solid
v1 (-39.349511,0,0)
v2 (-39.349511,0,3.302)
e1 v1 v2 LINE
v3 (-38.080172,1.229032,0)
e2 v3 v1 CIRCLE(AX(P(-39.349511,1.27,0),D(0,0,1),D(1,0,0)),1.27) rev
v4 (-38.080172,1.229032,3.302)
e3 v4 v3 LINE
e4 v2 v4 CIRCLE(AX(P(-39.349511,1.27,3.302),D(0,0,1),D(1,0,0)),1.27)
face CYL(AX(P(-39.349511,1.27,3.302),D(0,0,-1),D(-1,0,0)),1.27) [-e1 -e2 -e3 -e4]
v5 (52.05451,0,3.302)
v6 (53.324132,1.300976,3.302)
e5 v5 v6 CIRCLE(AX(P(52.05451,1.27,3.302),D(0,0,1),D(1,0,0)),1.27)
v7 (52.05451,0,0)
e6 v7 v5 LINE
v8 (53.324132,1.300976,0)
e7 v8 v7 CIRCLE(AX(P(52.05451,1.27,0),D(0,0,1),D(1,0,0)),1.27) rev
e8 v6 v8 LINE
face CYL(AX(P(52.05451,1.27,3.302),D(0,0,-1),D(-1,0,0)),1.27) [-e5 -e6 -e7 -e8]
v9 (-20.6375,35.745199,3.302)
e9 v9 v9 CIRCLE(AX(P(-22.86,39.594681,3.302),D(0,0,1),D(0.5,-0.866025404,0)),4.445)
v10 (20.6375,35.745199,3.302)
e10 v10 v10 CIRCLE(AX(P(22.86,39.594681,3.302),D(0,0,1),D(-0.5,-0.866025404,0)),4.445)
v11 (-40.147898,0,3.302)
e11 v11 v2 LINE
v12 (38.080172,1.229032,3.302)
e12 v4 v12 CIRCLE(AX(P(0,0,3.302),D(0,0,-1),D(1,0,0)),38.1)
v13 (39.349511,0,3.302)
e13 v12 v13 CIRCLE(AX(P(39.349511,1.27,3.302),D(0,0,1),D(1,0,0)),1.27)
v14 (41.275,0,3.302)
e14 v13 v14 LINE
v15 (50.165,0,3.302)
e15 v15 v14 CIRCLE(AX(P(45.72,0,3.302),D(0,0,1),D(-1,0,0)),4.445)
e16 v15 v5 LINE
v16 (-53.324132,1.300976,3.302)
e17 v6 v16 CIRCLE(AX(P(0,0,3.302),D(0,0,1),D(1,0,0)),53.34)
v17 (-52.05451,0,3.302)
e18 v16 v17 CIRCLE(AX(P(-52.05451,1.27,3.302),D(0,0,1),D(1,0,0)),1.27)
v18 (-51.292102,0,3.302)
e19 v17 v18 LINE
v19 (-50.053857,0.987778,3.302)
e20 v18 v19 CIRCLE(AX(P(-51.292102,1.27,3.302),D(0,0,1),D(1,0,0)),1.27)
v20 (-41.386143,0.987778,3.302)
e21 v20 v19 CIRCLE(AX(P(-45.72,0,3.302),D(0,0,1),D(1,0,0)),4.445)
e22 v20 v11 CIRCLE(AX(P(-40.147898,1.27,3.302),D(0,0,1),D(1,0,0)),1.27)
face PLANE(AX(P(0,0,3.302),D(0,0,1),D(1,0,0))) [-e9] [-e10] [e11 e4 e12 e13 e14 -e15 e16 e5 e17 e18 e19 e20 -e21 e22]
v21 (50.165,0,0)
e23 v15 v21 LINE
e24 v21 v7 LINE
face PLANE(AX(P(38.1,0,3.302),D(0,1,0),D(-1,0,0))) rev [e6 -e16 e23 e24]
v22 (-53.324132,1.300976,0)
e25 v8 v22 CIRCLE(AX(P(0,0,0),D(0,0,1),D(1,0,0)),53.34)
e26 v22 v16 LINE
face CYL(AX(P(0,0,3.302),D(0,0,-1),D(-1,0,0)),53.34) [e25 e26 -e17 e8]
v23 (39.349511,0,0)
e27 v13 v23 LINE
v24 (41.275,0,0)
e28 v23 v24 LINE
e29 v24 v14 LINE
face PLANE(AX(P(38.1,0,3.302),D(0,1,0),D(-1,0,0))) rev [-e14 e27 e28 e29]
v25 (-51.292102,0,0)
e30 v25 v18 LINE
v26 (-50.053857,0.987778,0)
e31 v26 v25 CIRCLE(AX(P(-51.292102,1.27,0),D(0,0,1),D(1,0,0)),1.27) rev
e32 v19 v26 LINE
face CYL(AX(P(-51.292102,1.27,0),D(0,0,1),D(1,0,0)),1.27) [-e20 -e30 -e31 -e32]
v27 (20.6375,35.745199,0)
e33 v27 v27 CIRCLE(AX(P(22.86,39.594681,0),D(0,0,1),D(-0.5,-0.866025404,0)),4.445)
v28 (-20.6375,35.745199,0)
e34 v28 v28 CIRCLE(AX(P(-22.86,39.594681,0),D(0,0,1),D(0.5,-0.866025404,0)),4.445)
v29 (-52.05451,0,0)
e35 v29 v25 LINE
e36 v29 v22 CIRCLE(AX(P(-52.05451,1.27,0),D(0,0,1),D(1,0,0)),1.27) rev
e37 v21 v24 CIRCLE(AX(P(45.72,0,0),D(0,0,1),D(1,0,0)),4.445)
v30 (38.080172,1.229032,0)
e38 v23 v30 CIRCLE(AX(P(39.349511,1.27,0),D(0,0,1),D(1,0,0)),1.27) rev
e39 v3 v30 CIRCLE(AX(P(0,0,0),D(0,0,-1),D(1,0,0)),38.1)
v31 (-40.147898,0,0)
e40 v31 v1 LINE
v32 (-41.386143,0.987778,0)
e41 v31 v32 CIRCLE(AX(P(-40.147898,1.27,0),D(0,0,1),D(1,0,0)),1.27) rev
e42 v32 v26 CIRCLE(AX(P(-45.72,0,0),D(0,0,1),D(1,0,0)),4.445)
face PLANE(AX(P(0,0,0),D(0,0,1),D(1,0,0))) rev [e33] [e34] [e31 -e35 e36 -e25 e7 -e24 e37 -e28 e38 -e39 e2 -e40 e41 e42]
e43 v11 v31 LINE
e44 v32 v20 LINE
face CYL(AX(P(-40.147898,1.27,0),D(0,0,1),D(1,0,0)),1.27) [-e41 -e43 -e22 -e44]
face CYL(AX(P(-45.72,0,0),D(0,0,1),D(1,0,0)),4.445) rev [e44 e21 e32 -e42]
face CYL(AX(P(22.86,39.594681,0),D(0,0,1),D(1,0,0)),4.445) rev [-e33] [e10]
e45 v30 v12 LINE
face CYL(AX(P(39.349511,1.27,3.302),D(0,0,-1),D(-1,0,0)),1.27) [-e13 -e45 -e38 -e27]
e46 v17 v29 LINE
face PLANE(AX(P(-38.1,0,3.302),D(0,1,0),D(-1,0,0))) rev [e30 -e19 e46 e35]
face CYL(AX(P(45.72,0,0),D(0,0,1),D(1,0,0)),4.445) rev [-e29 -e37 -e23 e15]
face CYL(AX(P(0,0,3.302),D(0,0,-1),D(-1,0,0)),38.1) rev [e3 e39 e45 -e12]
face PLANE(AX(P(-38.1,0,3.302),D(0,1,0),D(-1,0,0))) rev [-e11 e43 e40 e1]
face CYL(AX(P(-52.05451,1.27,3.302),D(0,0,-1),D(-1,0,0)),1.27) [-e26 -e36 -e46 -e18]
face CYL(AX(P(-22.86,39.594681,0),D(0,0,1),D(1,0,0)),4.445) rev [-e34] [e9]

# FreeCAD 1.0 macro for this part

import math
import FreeCAD as App
import Part
import Sketcher
Q = App.Units.Quantity


def edges_at(feature, points):
    """Names of the edges that pass closest to the given points."""
    edges = feature.Shape.Edges
    near = lambda p: min(range(len(edges)), key=lambda i: edges[i].distToShape(Part.Vertex(*p))[0])
    return sorted({f"Edge{near(p) + 1}" for p in points})

doc = App.newDocument("Part")
params = doc.addObject("Spreadsheet::Sheet", "Params")
for row, (alias, value) in enumerate([
    ("sketch1_radius", "1.5 in"),
    ("sketch1_radius2", "2.1 in"),
    ("pad1_length", "0.13 in"),
    ("sketch2_diameter", "0.35 in"),
    ("pocket1_length", "0.13 in"),
    ("fillet_radius", "0.05 in"),
], start=1):
    params.set(f"A{row}", alias)
    params.set(f"B{row}", "=" + value)
    params.setAlias(f"B{row}", alias)

body = doc.addObject("PartDesign::Body", "Body")

sketch1 = body.newObject("Sketcher::SketchObject", "Sketch")
sketch1.AttachmentSupport = (doc.getObject("XY_Plane"), [""])
sketch1.MapMode = "FlatFace"
sketch1.addGeometry(Part.LineSegment(App.Vector(-53, 0, 0), App.Vector(-38, 0, 0)), False)
sketch1.addGeometry(Part.ArcOfCircle(Part.Circle(App.Vector(0, 0, 0), App.Vector(0, 0, 1), 38), math.radians(0), math.radians(180)), False)
sketch1.addGeometry(Part.LineSegment(App.Vector(38, 0, 0), App.Vector(53, 0, 0)), False)
sketch1.addGeometry(Part.ArcOfCircle(Part.Circle(App.Vector(0, 0, 0), App.Vector(0, 0, 1), 53), math.radians(0), math.radians(180)), False)
sketch1.addConstraint(Sketcher.Constraint("Coincident", 0, 2, 1, 2))
sketch1.addConstraint(Sketcher.Constraint("Coincident", 1, 1, 2, 1))
sketch1.addConstraint(Sketcher.Constraint("Coincident", 2, 2, 3, 1))
sketch1.addConstraint(Sketcher.Constraint("Coincident", 3, 2, 0, 1))
sketch1.addConstraint(Sketcher.Constraint("Horizontal", 0))
sketch1.addConstraint(Sketcher.Constraint("Horizontal", 2))
sketch1.addConstraint(Sketcher.Constraint("Coincident", 1, 3, -1, 1))
sketch1.addConstraint(Sketcher.Constraint("Coincident", 3, 3, -1, 1))
sketch1.addConstraint(Sketcher.Constraint("PointOnObject", 0, 2, -1))
sketch1.addConstraint(Sketcher.Constraint("PointOnObject", 1, 1, -1))
sketch1.addConstraint(Sketcher.Constraint("Radius", 1, Q("1.5 in")))
sketch1.addConstraint(Sketcher.Constraint("Radius", 3, Q("2.1 in")))
sketch1.setExpression("Constraints[10]", "Params.sketch1_radius")
sketch1.setExpression("Constraints[11]", "Params.sketch1_radius2")
pad1 = body.newObject("PartDesign::Pad", "Pad")
pad1.Profile = sketch1
pad1.setExpression("Length", "Params.pad1_length")

sketch2 = body.newObject("Sketcher::SketchObject", "Sketch001")
sketch2.AttachmentSupport = (doc.getObject("XY_Plane"), [""])
sketch2.MapMode = "FlatFace"
sketch2.AttachmentOffset = App.Placement(App.Vector(0, 0, 0.13 * 25.4), App.Rotation())
sketch2.addGeometry(Part.Circle(App.Vector(-45.7, 0, 0), App.Vector(0, 0, 1), 4.4), False)
sketch2.addConstraint(Sketcher.Constraint("PointOnObject", 0, 3, -1))
sketch2.addConstraint(Sketcher.Constraint("Diameter", 0, Q("0.35 in")))
sketch2.addConstraint(Sketcher.Constraint("DistanceX", 0, 3, -1, 1, Q("1.8 in")))
sketch2.setExpression("Constraints[1]", "Params.sketch2_diameter")
pocket1 = body.newObject("PartDesign::Pocket", "Pocket")
pocket1.Profile = sketch2
pocket1.setExpression("Length", "Params.pocket1_length")
doc.recompute()

polarpattern = body.newObject("PartDesign::PolarPattern", "PolarPattern")
polarpattern.Originals = [pocket1]
polarpattern.Axis = (doc.getObject("Z_Axis"), [""])
polarpattern.Angle = 180
polarpattern.Occurrences = 4
polarpattern.Reversed = True
body.Tip = polarpattern
doc.recompute()

fillet = body.newObject("PartDesign::Fillet", "Fillet")
fillet.Base = (polarpattern, edges_at(polarpattern, [
    (-50.165, 0, 1.651),
    (-41.275, 0, 1.651),
    (-38.1, 0, 1.651),
    (-53.34, 0, 1.651),
    (53.34, 0, 1.651),
    (38.1, 0, 1.651),
]))
fillet.setExpression("Radius", "Params.fillet_radius")

doc.recompute()
